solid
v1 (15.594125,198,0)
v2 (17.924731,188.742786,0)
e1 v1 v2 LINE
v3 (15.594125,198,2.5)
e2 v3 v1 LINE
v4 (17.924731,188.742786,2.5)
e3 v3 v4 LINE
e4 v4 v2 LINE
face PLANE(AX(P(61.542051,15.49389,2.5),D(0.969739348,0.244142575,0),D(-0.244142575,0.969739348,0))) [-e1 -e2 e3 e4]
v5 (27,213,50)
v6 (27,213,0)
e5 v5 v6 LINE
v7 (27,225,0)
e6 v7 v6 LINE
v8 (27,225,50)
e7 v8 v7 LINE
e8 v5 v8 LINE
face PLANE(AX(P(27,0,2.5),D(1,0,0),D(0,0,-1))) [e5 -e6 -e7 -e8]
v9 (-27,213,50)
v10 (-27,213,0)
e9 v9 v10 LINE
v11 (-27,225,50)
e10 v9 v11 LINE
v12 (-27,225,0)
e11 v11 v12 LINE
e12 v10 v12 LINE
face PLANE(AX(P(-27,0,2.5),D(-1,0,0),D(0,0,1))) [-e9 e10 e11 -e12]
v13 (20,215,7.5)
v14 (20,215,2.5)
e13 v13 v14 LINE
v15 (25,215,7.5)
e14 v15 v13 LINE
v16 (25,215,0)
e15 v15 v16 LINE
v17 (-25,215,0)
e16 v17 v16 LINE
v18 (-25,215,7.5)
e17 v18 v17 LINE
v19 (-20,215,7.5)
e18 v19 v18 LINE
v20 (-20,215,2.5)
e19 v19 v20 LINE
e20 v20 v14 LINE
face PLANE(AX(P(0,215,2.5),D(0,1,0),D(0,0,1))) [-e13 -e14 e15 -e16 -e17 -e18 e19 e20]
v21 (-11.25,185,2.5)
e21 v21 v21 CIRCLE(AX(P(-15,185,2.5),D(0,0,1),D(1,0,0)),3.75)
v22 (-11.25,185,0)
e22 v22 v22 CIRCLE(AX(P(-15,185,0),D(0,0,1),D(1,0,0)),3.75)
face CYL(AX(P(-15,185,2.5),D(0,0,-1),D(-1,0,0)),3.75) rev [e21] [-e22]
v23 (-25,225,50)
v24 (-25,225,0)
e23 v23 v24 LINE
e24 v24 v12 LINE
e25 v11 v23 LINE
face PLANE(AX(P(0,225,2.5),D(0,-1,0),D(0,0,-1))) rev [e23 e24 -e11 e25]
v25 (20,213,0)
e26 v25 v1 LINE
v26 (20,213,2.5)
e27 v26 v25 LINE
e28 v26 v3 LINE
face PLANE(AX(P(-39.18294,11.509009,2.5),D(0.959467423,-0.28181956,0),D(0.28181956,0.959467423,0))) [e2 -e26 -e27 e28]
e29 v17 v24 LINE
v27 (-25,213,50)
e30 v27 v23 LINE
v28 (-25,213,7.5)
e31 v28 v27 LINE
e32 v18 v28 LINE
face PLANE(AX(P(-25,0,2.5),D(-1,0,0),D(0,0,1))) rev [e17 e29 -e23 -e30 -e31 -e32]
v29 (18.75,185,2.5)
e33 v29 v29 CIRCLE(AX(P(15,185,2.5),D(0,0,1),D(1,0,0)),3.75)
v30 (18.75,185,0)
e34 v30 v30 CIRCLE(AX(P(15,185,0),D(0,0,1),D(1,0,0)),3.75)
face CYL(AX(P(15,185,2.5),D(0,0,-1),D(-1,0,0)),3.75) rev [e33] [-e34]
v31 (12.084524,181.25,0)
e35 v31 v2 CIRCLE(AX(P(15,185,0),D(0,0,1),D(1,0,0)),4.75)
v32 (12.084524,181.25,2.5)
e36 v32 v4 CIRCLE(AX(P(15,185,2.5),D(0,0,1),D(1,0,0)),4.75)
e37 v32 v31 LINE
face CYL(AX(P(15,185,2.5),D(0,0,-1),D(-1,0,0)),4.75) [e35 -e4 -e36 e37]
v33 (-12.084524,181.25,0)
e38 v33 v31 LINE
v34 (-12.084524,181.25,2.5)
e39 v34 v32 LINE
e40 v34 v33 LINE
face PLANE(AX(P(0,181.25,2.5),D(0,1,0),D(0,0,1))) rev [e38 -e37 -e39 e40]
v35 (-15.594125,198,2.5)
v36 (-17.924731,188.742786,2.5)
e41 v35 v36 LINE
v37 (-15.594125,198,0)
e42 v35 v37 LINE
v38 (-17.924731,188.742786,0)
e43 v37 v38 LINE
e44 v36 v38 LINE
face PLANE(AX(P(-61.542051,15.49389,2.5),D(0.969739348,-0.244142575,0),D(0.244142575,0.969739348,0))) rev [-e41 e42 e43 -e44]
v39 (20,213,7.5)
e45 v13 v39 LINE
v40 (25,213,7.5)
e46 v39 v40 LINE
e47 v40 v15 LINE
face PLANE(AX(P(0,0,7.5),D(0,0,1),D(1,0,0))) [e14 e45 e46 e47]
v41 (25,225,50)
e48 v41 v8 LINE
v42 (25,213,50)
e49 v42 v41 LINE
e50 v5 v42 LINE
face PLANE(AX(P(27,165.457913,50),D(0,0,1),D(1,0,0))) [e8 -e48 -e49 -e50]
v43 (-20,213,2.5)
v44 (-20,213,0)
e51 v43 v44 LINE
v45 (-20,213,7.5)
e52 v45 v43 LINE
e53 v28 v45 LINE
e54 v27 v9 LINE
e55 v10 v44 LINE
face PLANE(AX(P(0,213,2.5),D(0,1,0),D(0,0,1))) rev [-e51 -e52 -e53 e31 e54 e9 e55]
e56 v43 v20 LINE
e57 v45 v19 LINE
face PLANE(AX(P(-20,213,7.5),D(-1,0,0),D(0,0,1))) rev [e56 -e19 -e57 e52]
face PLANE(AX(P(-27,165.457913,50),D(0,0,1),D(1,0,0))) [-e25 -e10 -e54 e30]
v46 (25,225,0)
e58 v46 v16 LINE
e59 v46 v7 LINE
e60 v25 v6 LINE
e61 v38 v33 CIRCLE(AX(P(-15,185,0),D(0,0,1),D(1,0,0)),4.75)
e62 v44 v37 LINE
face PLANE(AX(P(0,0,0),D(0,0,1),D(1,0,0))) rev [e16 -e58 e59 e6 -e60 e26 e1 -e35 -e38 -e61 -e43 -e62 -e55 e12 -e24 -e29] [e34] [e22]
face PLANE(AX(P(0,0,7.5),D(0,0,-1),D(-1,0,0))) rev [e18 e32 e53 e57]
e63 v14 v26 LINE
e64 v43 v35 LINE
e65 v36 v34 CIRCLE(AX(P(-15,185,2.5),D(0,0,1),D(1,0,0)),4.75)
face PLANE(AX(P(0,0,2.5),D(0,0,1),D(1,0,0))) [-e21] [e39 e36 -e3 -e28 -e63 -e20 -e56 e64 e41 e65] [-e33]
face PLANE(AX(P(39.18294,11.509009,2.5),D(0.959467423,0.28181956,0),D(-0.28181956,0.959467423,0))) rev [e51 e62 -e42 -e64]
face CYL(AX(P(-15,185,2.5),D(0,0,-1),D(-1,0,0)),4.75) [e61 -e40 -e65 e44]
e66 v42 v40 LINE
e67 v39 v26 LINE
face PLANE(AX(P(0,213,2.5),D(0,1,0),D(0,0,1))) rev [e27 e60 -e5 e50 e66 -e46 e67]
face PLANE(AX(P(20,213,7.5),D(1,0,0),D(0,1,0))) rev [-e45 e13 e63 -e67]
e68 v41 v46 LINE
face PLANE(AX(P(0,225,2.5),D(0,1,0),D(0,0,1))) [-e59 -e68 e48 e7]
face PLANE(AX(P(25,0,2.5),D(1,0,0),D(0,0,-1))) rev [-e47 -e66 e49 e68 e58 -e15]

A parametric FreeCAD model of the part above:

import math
import FreeCAD as App
import Part
import Sketcher


def add_polygon(sketch, points):
    """Adds a closed chain of lines whose ends are joined by coincident constraints."""
    first, n = sketch.GeometryCount, len(points)
    for a, b in zip(points, points[1:] + points[:1]):
        sketch.addGeometry(Part.LineSegment(App.Vector(*a, 0), App.Vector(*b, 0)), False)
    for i in range(n):
        sketch.addConstraint(Sketcher.Constraint("Coincident", first + i, 2, first + (i + 1) % n, 1))

doc = App.newDocument("Part")
body = doc.addObject("PartDesign::Body", "Body")

sketch1 = doc.addObject("Sketcher::SketchObject", "Sketch")
body.addObject(sketch1)
sketch1.AttachmentSupport = (doc.XY_Plane, [""])
sketch1.MapMode = "FlatFace"
sketch1.addGeometry([
    Part.LineSegment(App.Vector(-25, 215, 0), App.Vector(-25, 225, 0)),
    Part.LineSegment(App.Vector(-25, 225, 0), App.Vector(-27, 225, 0)),
    Part.LineSegment(App.Vector(-27, 225, 0), App.Vector(-27, 213, 0)),
    Part.LineSegment(App.Vector(-27, 213, 0), App.Vector(-20, 213, 0)),
    Part.LineSegment(App.Vector(-20, 213, 0), App.Vector(-15.594125, 198, 0)),
    Part.LineSegment(App.Vector(-15.594125, 198, 0), App.Vector(-17.924731, 188.742786, 0)),
    Part.ArcOfCircle(Part.Circle(App.Vector(-15, 185, 0), App.Vector(0, 0, 1), 4.75), math.radians(128.005185), math.radians(307.863646)),
    Part.LineSegment(App.Vector(-12.084524, 181.25, 0), App.Vector(12.084524, 181.25, 0)),
    Part.ArcOfCircle(Part.Circle(App.Vector(15, 185, 0), App.Vector(0, 0, 1), 4.75), math.radians(-127.863646), math.radians(51.994815)),
    Part.LineSegment(App.Vector(17.924731, 188.742786, 0), App.Vector(15.594125, 198, 0)),
    Part.LineSegment(App.Vector(15.594125, 198, 0), App.Vector(20, 213, 0)),
    Part.LineSegment(App.Vector(20, 213, 0), App.Vector(27, 213, 0)),
    Part.LineSegment(App.Vector(27, 213, 0), App.Vector(27, 225, 0)),
    Part.LineSegment(App.Vector(27, 225, 0), App.Vector(25, 225, 0)),
    Part.LineSegment(App.Vector(25, 225, 0), App.Vector(25, 215, 0)),
    Part.LineSegment(App.Vector(25, 215, 0), App.Vector(-25, 215, 0)),
    Part.ArcOfCircle(Part.Circle(App.Vector(15, 185, 0), App.Vector(0, 0, 1), 3.75), math.radians(0), math.radians(14.131168)),
    Part.ArcOfCircle(Part.Circle(App.Vector(15, 185, 0), App.Vector(0, 0, 1), 3.75), math.radians(-90), math.radians(0)),
    Part.ArcOfCircle(Part.Circle(App.Vector(15, 185, 0), App.Vector(0, 0, 1), 3.75), math.radians(14.131168), math.radians(270)),
    Part.ArcOfCircle(Part.Circle(App.Vector(-15, 185, 0), App.Vector(0, 0, 1), 3.75), math.radians(-90), math.radians(0)),
    Part.ArcOfCircle(Part.Circle(App.Vector(-15, 185, 0), App.Vector(0, 0, 1), 3.75), math.radians(165.868832), math.radians(270)),
    Part.ArcOfCircle(Part.Circle(App.Vector(-15, 185, 0), App.Vector(0, 0, 1), 3.75), math.radians(0), math.radians(165.868832)),
], False)
sketch1.addConstraint([
    Sketcher.Constraint("Coincident", 0, 2, 1, 1),
    Sketcher.Constraint("Coincident", 1, 2, 2, 1),
    Sketcher.Constraint("Coincident", 2, 2, 3, 1),
    Sketcher.Constraint("Coincident", 3, 2, 4, 1),
    Sketcher.Constraint("Coincident", 4, 2, 5, 1),
    Sketcher.Constraint("Coincident", 5, 2, 6, 1),
    Sketcher.Constraint("Coincident", 6, 2, 7, 1),
    Sketcher.Constraint("Coincident", 7, 2, 8, 1),
    Sketcher.Constraint("Coincident", 8, 2, 9, 1),
    Sketcher.Constraint("Coincident", 9, 2, 10, 1),
    Sketcher.Constraint("Coincident", 10, 2, 11, 1),
    Sketcher.Constraint("Coincident", 11, 2, 12, 1),
    Sketcher.Constraint("Coincident", 12, 2, 13, 1),
    Sketcher.Constraint("Coincident", 13, 2, 14, 1),
    Sketcher.Constraint("Coincident", 14, 2, 15, 1),
    Sketcher.Constraint("Coincident", 15, 2, 0, 1),
    Sketcher.Constraint("Tangent", 16, 1, 17, 2),
    Sketcher.Constraint("Tangent", 17, 1, 18, 2),
    Sketcher.Constraint("Tangent", 18, 1, 16, 2),
    Sketcher.Constraint("Tangent", 19, 1, 20, 2),
    Sketcher.Constraint("Tangent", 20, 1, 21, 2),
    Sketcher.Constraint("Tangent", 21, 1, 19, 2),
    Sketcher.Constraint("Vertical", 0),
    Sketcher.Constraint("Horizontal", 1),
    Sketcher.Constraint("Vertical", 2),
    Sketcher.Constraint("Horizontal", 3),
    Sketcher.Constraint("Horizontal", 7),
    Sketcher.Constraint("Horizontal", 11),
    Sketcher.Constraint("Vertical", 12),
    Sketcher.Constraint("Horizontal", 13),
    Sketcher.Constraint("Vertical", 14),
    Sketcher.Constraint("Horizontal", 15),
    Sketcher.Constraint("Coincident", 16, 3, 8, 3),
    Sketcher.Constraint("Coincident", 19, 3, 6, 3),
    Sketcher.Constraint("Equal", 6, 8),
    Sketcher.Constraint("Equal", 18, 19),
    Sketcher.Constraint("Symmetric", 6, 3, 8, 3, -2),
    Sketcher.Constraint("Symmetric", 4, 2, 9, 2, -2),
    Sketcher.Constraint("Symmetric", 3, 2, 10, 2, -2),
    Sketcher.Constraint("Symmetric", 1, 2, 12, 2, -2),
    Sketcher.Constraint("Horizontal", 5, 2, 8, 2),
    Sketcher.Constraint("Horizontal", 21, 3, 16, 1),
    Sketcher.Constraint("Horizontal", 7, 2, 17, 1),
    Sketcher.Constraint("Horizontal", 18, 1, 20, 1),
    Sketcher.Constraint("Horizontal", 16, 1, 21, 1),
    Sketcher.Constraint("Vertical", 18, 3, 17, 1),
    Sketcher.Constraint("Vertical", 21, 3, 19, 1),
    Sketcher.Constraint("Equal", 1, 13),
    Sketcher.Constraint("DistanceX", 1, 2, 1, 1, 2.0),
    Sketcher.Constraint("DistanceX", 3, 1, 3, 2, 7.0),
    Sketcher.Constraint("DistanceX", 15, 2, 15, 1, 50.0),
    Sketcher.Constraint("DistanceY", 0, 1, 0, 2, 10.0),
    Sketcher.Constraint("DistanceY", 2, 2, 2, 1, 12.0),
    Sketcher.Constraint("Radius", 6, 4.75),
    Sketcher.Constraint("Radius", 16, 3.75),
    Sketcher.Constraint("DistanceX", 6, 3, -1, 1, 15.0),
    Sketcher.Constraint("DistanceY", -1, 1, 6, 3, 185.0),
    Sketcher.Constraint("DistanceY", -1, 1, 0, 2, 225.0),
    Sketcher.Constraint("DistanceY", -1, 1, 4, 2, 198.0),
    Sketcher.Constraint("DistanceX", 5, 2, -1, 1, 17.924731),
    Sketcher.Constraint("DistanceX", 8, 2, 18, 1, 0.711792),
    Sketcher.Constraint("Distance", 4, 15.633673),
])
pad1 = doc.addObject("PartDesign::Pad", "Pad")
body.addObject(pad1)
pad1.Profile = sketch1
pad1.Length = 2.5

sketch2 = doc.addObject("Sketcher::SketchObject", "Sketch001")
body.addObject(sketch2)
sketch2.AttachmentSupport = (doc.XZ_Plane, [""])
sketch2.MapMode = "FlatFace"
sketch2.AttachmentOffset = App.Placement(App.Vector(0, 0, -225), App.Rotation())
add_polygon(sketch2, [(25, 2.5), (25, 50), (27, 50), (27, 2.5)])
add_polygon(sketch2, [(-27, 2.5), (-27, 50), (-25, 50), (-25, 2.5)])
sketch2.addConstraint([
    Sketcher.Constraint("Vertical", 0),
    Sketcher.Constraint("Horizontal", 1),
    Sketcher.Constraint("Vertical", 2),
    Sketcher.Constraint("Horizontal", 3),
    Sketcher.Constraint("Vertical", 4),
    Sketcher.Constraint("Horizontal", 5),
    Sketcher.Constraint("Vertical", 6),
    Sketcher.Constraint("Horizontal", 7),
    Sketcher.Constraint("Symmetric", 1, 2, 4, 2, -2),
    Sketcher.Constraint("Symmetric", 3, 2, 6, 2, -2),
    Sketcher.Constraint("DistanceX", 1, 1, 1, 2, 2.0),
    Sketcher.Constraint("DistanceY", 0, 1, 0, 2, 47.5),
    Sketcher.Constraint("DistanceX", -1, 1, 0, 2, 25.0),
    Sketcher.Constraint("DistanceY", -1, 1, 0, 2, 50.0),
])
pad2 = doc.addObject("PartDesign::Pad", "Pad001")
body.addObject(pad2)
pad2.Profile = sketch2
pad2.Length = 12

sketch3 = doc.addObject("Sketcher::SketchObject", "Sketch002")
body.addObject(sketch3)
sketch3.AttachmentSupport = (doc.XY_Plane, [""])
sketch3.MapMode = "FlatFace"
sketch3.AttachmentOffset = App.Placement(App.Vector(0, 0, 2.5), App.Rotation())
add_polygon(sketch3, [(-25, 215), (-25, 213), (-20, 213), (-20, 215)])
add_polygon(sketch3, [(20, 215), (20, 213), (25, 213), (25, 215)])
sketch3.addConstraint([
    Sketcher.Constraint("Vertical", 0),
    Sketcher.Constraint("Horizontal", 1),
    Sketcher.Constraint("Vertical", 2),
    Sketcher.Constraint("Horizontal", 3),
    Sketcher.Constraint("Vertical", 4),
    Sketcher.Constraint("Horizontal", 5),
    Sketcher.Constraint("Vertical", 6),
    Sketcher.Constraint("Horizontal", 7),
    Sketcher.Constraint("Symmetric", 1, 2, 4, 2, -2),
    Sketcher.Constraint("Symmetric", 3, 2, 6, 2, -2),
    Sketcher.Constraint("DistanceX", 1, 1, 1, 2, 5.0),
    Sketcher.Constraint("DistanceY", 0, 2, 0, 1, 2.0),
    Sketcher.Constraint("DistanceX", 0, 2, -1, 1, 25.0),
    Sketcher.Constraint("DistanceY", -1, 1, 0, 2, 213.0),
])
pad3 = doc.addObject("PartDesign::Pad", "Pad002")
body.addObject(pad3)
pad3.Profile = sketch3
pad3.Length = 5

doc.recompute()
